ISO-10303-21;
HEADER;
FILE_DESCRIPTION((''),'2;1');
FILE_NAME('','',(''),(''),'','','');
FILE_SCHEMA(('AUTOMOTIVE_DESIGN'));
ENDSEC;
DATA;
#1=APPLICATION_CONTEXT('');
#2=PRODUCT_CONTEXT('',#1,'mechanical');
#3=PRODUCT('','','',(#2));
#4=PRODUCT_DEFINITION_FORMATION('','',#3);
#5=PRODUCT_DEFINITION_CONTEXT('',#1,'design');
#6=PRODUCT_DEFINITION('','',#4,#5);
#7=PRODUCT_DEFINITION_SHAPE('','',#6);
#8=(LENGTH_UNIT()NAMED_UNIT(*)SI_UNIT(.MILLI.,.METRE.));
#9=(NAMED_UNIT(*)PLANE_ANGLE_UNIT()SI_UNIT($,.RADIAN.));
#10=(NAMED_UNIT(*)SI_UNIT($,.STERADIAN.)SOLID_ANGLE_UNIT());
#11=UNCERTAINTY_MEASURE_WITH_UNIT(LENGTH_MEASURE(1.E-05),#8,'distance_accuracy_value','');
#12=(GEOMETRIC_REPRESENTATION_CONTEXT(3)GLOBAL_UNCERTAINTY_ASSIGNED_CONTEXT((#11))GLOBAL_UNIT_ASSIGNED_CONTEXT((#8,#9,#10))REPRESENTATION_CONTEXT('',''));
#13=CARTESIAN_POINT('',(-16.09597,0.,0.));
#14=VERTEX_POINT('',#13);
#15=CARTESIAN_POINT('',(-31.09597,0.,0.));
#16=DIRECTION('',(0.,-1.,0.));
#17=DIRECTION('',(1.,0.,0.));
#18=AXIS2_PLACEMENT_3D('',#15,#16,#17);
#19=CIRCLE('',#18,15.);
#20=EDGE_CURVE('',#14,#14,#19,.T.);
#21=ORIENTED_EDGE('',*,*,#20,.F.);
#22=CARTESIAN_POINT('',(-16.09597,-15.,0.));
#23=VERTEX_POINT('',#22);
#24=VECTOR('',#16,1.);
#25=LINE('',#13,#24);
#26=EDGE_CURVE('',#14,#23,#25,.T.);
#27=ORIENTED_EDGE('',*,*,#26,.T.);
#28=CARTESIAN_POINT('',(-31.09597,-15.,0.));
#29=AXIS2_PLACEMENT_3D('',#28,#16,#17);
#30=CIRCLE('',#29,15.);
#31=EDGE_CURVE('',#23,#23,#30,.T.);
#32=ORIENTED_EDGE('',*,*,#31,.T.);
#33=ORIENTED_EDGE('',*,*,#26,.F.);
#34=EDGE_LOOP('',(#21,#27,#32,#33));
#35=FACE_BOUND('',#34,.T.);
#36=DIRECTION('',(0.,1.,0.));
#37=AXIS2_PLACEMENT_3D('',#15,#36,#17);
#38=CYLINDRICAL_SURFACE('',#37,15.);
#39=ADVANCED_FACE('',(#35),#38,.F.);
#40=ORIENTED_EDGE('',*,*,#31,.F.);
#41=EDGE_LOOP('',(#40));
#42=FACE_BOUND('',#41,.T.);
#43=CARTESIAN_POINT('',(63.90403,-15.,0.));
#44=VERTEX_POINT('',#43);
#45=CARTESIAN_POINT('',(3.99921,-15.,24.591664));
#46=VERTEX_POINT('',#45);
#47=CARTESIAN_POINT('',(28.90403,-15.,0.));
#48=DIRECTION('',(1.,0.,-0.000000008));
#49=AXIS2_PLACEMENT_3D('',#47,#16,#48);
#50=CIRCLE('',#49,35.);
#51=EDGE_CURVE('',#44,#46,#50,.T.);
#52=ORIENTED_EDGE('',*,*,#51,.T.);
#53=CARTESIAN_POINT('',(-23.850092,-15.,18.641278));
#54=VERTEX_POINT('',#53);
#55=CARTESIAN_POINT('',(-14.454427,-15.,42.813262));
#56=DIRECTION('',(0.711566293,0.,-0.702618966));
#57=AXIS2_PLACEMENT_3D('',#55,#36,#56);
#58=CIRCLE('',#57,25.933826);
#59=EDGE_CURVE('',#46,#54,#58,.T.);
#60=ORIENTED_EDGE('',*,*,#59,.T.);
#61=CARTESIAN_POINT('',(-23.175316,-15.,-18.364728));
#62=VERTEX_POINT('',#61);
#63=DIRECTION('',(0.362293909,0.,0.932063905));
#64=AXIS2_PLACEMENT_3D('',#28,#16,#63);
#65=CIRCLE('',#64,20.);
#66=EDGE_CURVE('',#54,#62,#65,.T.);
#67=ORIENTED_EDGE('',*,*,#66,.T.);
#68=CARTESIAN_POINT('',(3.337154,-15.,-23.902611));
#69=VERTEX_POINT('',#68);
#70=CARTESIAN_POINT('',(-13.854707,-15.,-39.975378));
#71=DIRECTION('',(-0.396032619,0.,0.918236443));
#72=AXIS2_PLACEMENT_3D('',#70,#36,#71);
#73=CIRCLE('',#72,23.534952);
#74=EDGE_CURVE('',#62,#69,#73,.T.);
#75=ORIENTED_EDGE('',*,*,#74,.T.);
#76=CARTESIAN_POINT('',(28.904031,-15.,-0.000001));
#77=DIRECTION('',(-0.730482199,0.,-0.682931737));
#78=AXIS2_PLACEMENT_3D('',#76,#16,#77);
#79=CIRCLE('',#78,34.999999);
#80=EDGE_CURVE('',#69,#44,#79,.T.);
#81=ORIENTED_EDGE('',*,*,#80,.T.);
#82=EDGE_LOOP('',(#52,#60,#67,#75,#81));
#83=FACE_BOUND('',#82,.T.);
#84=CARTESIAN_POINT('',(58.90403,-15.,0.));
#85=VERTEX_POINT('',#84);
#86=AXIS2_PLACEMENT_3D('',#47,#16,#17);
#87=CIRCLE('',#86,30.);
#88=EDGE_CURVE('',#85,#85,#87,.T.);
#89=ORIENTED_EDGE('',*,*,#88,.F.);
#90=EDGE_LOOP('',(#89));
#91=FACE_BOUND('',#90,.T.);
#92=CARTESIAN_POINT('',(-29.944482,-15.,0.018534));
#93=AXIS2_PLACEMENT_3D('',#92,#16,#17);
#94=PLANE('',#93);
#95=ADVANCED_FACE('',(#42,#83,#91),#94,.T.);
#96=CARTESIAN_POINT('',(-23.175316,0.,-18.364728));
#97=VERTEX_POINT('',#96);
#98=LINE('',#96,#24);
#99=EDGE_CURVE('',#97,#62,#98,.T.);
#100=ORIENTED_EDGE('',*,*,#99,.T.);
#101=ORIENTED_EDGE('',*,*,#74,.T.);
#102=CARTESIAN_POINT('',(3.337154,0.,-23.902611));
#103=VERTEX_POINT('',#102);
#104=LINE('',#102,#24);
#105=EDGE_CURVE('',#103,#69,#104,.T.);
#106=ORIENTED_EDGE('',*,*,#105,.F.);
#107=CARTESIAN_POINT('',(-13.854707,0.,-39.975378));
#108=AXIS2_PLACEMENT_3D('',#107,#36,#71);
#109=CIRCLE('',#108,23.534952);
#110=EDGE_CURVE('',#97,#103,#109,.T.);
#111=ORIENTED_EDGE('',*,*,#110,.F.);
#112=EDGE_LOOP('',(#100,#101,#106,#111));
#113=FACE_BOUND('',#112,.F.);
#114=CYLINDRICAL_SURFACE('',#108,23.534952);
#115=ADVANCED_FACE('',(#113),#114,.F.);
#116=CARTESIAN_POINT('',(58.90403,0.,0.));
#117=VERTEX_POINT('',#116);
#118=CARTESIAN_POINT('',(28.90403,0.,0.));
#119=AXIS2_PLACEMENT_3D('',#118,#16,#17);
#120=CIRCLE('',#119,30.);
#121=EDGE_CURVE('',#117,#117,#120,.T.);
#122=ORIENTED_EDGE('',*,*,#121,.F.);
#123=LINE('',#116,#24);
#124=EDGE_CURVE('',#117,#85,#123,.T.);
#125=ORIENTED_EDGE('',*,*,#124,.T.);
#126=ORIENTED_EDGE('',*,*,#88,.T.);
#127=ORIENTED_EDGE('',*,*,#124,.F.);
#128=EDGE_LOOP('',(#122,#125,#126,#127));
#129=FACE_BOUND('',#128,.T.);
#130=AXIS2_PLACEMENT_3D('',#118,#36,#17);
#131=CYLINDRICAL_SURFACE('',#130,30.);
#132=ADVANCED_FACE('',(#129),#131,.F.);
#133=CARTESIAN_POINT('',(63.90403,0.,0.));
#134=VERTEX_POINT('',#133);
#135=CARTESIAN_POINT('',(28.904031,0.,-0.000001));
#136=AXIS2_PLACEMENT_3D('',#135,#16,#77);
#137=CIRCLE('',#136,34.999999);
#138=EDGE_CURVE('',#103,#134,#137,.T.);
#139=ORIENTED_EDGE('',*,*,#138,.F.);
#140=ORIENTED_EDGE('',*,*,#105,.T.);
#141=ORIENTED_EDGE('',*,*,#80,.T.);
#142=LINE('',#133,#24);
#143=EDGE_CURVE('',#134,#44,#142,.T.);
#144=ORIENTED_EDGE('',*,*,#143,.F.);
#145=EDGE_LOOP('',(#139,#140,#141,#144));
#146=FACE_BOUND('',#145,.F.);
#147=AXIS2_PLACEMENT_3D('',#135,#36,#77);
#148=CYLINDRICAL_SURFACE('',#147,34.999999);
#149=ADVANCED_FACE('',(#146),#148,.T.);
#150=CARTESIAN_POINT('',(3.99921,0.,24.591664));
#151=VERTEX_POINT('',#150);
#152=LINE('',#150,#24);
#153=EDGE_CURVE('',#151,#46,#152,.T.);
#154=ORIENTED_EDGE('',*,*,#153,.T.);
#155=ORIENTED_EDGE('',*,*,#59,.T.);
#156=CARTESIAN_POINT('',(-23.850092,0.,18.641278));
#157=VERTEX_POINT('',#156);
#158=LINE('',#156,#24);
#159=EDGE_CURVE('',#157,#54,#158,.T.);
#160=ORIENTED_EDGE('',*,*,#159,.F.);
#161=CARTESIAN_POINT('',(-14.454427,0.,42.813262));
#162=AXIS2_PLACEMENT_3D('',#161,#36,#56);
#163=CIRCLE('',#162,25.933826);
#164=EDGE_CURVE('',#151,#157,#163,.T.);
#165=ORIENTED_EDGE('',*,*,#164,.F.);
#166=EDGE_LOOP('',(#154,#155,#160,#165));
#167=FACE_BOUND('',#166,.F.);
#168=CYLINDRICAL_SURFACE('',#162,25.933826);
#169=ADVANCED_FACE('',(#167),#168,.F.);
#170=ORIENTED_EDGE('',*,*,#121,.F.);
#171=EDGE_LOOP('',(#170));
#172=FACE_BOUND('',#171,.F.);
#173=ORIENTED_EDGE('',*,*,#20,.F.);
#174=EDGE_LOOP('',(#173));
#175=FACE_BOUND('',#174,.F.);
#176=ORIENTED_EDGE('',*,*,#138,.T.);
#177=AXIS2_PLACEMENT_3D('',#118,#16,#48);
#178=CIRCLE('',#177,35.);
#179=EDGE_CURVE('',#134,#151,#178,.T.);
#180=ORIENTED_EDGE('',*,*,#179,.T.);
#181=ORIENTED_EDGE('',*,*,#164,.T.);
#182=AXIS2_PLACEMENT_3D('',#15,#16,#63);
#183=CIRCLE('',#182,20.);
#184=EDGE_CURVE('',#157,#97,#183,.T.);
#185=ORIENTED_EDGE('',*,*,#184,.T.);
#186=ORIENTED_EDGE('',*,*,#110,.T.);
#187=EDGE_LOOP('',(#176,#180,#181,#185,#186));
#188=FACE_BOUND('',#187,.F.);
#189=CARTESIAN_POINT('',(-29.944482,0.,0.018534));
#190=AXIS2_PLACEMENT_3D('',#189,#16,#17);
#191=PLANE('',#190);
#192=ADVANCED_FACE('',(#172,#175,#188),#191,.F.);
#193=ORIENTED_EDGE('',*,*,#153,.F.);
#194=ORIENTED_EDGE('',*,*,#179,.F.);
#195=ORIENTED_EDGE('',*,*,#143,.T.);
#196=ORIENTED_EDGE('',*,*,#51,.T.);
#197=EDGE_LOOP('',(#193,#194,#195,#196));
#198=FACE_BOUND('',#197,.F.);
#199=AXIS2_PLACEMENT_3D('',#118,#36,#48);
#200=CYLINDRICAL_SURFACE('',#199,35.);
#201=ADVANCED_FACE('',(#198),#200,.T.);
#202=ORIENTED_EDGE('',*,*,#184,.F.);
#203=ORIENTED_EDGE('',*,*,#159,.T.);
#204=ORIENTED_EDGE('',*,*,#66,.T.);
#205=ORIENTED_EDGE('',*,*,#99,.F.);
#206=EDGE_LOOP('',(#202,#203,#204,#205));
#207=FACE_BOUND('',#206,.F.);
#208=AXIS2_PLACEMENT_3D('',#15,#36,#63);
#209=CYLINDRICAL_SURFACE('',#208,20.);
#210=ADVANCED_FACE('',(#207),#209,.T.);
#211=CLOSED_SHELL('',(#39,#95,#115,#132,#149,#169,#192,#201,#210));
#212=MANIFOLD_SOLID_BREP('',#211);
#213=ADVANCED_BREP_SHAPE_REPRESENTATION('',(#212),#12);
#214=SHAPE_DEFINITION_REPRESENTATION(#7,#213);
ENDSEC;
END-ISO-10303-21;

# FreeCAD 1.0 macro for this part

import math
import FreeCAD as App
import Part
import Sketcher
from FreeCAD import Vector
Q = App.Units.Quantity

doc = App.newDocument("Part")
body = doc.addObject("PartDesign::Body", "Body")

# Sketch on XZ plane
sketch1 = body.newObject("Sketcher::SketchObject", "Sketch")
sketch1.AttachmentSupport = (doc.getObject("XZ_Plane"), [""])
sketch1.MapMode = "FlatFace"
sketch1.addGeometry([
    Part.ArcOfCircle(Part.Circle(Vector(-31, 0, 0), Vector(0, 0, 1), 20), math.radians(69), math.radians(293)),  # 0
    Part.ArcOfCircle(Part.Circle(Vector(-14, -40, 0), Vector(0, 0, 1), 24), math.radians(43), math.radians(113)),  # 1
    Part.ArcOfCircle(Part.Circle(Vector(29, 0, 0), Vector(0, 0, 1), 35), math.radians(-137), math.radians(0)),  # 2
    Part.ArcOfCircle(Part.Circle(Vector(29, 0, 0), Vector(0, 0, 1), 35), math.radians(0), math.radians(135)),  # 3
    Part.ArcOfCircle(Part.Circle(Vector(-14, 43, 0), Vector(0, 0, 1), 26), math.radians(-111), math.radians(-45)),  # 4
    Part.Circle(Vector(-31, 0, 0), Vector(0, 0, 1), 15),  # 5
    Part.Circle(Vector(29, 0, 0), Vector(0, 0, 1), 30),  # 6
], False)
sketch1.addConstraint([
    Sketcher.Constraint("Tangent", 0, 2, 1, 2),
    Sketcher.Constraint("Tangent", 1, 1, 2, 1),
    Sketcher.Constraint("Tangent", 2, 2, 3, 1),
    Sketcher.Constraint("Tangent", 3, 2, 4, 2),
    Sketcher.Constraint("Tangent", 4, 1, 0, 1),
    Sketcher.Constraint("Coincident", 5, 3, 0, 3),
    Sketcher.Constraint("Coincident", 6, 3, 2, 3),
    Sketcher.Constraint("Equal", 2, 3),
    Sketcher.Constraint("PointOnObject", 0, 3, -1),
    Sketcher.Constraint("PointOnObject", 2, 3, -1),
    Sketcher.Constraint("PointOnObject", 2, 2, -1),
    Sketcher.Constraint("Diameter", 5, Q("30 mm")),
    Sketcher.Constraint("Diameter", 6, Q("60 mm")),
    Sketcher.Constraint("Radius", 0, Q("20 mm")),
    Sketcher.Constraint("Radius", 2, Q("34.999999 mm")),
    Sketcher.Constraint("DistanceX", 0, 3, 2, 3, Q("60.000001 mm")),
    Sketcher.Constraint("Radius", 1, Q("23.534952 mm")),
    Sketcher.Constraint("Radius", 4, Q("25.933826 mm")),
    Sketcher.Constraint("DistanceX", 0, 3, -1, 1, Q("31.09597 mm")),
])
pad1 = body.newObject("PartDesign::Pad", "Pad")
pad1.Profile = sketch1
pad1.Length = 15

doc.recompute()
